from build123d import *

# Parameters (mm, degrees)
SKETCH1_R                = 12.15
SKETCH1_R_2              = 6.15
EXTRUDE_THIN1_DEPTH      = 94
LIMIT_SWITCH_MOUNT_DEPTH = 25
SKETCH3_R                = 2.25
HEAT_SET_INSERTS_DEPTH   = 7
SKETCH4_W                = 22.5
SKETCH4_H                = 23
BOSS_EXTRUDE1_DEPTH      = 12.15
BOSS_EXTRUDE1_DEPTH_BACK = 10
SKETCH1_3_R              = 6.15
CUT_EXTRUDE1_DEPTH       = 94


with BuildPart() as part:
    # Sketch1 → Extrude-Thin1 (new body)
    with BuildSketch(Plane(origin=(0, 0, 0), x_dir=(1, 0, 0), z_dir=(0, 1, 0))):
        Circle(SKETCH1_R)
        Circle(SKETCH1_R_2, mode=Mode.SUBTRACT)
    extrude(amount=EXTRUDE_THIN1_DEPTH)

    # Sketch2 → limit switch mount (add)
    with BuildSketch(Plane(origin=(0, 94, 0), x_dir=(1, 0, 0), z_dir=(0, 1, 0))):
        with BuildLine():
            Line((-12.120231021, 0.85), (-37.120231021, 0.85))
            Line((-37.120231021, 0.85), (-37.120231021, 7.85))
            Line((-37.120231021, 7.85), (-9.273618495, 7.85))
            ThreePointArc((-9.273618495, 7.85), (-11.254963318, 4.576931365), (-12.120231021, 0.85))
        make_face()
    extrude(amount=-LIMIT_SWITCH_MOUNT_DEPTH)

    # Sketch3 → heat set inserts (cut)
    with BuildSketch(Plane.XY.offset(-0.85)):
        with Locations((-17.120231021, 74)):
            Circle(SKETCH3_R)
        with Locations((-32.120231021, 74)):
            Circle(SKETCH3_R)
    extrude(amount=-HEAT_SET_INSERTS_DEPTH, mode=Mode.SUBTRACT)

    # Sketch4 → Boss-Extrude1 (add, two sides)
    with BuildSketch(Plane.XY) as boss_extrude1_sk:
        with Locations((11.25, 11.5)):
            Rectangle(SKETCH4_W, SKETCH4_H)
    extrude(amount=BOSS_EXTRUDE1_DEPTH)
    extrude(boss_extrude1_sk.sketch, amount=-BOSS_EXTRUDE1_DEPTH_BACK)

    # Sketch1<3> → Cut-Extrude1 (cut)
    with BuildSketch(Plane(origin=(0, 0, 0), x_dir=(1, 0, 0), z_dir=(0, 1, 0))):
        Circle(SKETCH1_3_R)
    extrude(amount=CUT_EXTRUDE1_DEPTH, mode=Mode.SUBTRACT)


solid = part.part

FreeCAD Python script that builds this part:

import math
import FreeCAD as App
import Part
import Sketcher

doc = App.newDocument("Part")
params = doc.addObject("Spreadsheet::Sheet", "Params")
for row, (alias, value) in enumerate([
    ("sketch1_diameter", "24.3 mm"),
    ("sketch1_diameter2", "12.3 mm"),
    ("pad1_length", "94 mm"),
    ("sketch2_width", "25 mm"),
    ("sketch2_height", "7 mm"),
    ("sketch2_radius", "12.15 mm"),
    ("pad2_length", "25 mm"),
    ("sketch3_diameter", "4.5 mm"),
    ("pocket1_length", "7 mm"),
    ("sketch4_height", "23 mm"),
    ("sketch4_width", "22.5 mm"),
    ("pad3_length", "12.15 mm"),
    ("pad3_length2", "10 mm"),
    ("sketch5_diameter", "12.3 mm"),
    ("pocket2_length", "94 mm"),
], start=1):
    params.set(f"A{row}", alias)
    params.set(f"B{row}", "=" + value)
    params.setAlias(f"B{row}", alias)

body = doc.addObject("PartDesign::Body", "Body")

# Sketch on XZ plane
sketch1 = body.newObject("Sketcher::SketchObject", "Sketch")
sketch1.AttachmentSupport = (doc.getObject("XZ_Plane"), [""])
sketch1.MapMode = "FlatFace"
sketch1.addGeometry(Part.Circle(App.Vector(0, 0, 0), App.Vector(0, 0, 1), 12), False)
sketch1.addGeometry(Part.Circle(App.Vector(0, 0, 0), App.Vector(0, 0, 1), 6), False)
sketch1.addConstraint(Sketcher.Constraint("Coincident", 0, 3, -1, 1))
sketch1.addConstraint(Sketcher.Constraint("Coincident", 1, 3, -1, 1))
sketch1.addConstraint(Sketcher.Constraint("Diameter", 0, 24.3))
sketch1.addConstraint(Sketcher.Constraint("Diameter", 1, 12.3))
sketch1.setExpression("Constraints[2]", "Params.sketch1_diameter")
sketch1.setExpression("Constraints[3]", "Params.sketch1_diameter2")
pad1 = body.newObject("PartDesign::Pad", "Pad")
pad1.Profile = sketch1
pad1.setExpression("Length", "Params.pad1_length")
pad1.Reversed = True

# Sketch on XZ plane
sketch2 = body.newObject("Sketcher::SketchObject", "Sketch001")
sketch2.AttachmentSupport = (doc.getObject("XZ_Plane"), [""])
sketch2.MapMode = "FlatFace"
sketch2.AttachmentOffset = App.Placement(App.Vector(0, 0, -94), App.Rotation())
sketch2.addGeometry(Part.LineSegment(App.Vector(-37, -1, 0), App.Vector(-12, -1, 0)), False)
sketch2.addGeometry(Part.ArcOfCircle(Part.Circle(App.Vector(0, 0, 0), App.Vector(0, 0, 1), 12), math.radians(-176), math.radians(-140)), False)
sketch2.addGeometry(Part.LineSegment(App.Vector(-9, -8, 0), App.Vector(-37, -8, 0)), False)
sketch2.addGeometry(Part.LineSegment(App.Vector(-37, -8, 0), App.Vector(-37, -1, 0)), False)
sketch2.addConstraint(Sketcher.Constraint("Coincident", 0, 2, 1, 1))
sketch2.addConstraint(Sketcher.Constraint("Coincident", 1, 2, 2, 1))
sketch2.addConstraint(Sketcher.Constraint("Coincident", 2, 2, 3, 1))
sketch2.addConstraint(Sketcher.Constraint("Coincident", 3, 2, 0, 1))
sketch2.addConstraint(Sketcher.Constraint("Horizontal", 0))
sketch2.addConstraint(Sketcher.Constraint("Horizontal", 2))
sketch2.addConstraint(Sketcher.Constraint("Vertical", 3))
sketch2.addConstraint(Sketcher.Constraint("Coincident", 1, 3, -1, 1))
sketch2.addConstraint(Sketcher.Constraint("DistanceX", 0, 1, 0, 2, 25.0))
sketch2.addConstraint(Sketcher.Constraint("DistanceY", 3, 1, 3, 2, 7.0))
sketch2.addConstraint(Sketcher.Constraint("Radius", 1, 12.15))
sketch2.addConstraint(Sketcher.Constraint("DistanceY", 0, 2, -1, 1, 0.85))
sketch2.setExpression("Constraints[8]", "Params.sketch2_width")
sketch2.setExpression("Constraints[9]", "Params.sketch2_height")
sketch2.setExpression("Constraints[10]", "Params.sketch2_radius")
pad2 = body.newObject("PartDesign::Pad", "Pad001")
pad2.Profile = sketch2
pad2.setExpression("Length", "Params.pad2_length")

# Sketch on XY plane
sketch3 = body.newObject("Sketcher::SketchObject", "Sketch002")
sketch3.AttachmentSupport = (doc.getObject("XY_Plane"), [""])
sketch3.MapMode = "FlatFace"
sketch3.AttachmentOffset = App.Placement(App.Vector(0, 0, -0.85), App.Rotation())
sketch3.addGeometry(Part.Circle(App.Vector(-17.1, 74, 0), App.Vector(0, 0, 1), 2.2), False)
sketch3.addGeometry(Part.Circle(App.Vector(-32.1, 74, 0), App.Vector(0, 0, 1), 2.2), False)
sketch3.addConstraint(Sketcher.Constraint("Equal", 0, 1))
sketch3.addConstraint(Sketcher.Constraint("Horizontal", 0, 3, 1, 3))
sketch3.addConstraint(Sketcher.Constraint("Diameter", 0, 4.5))
sketch3.addConstraint(Sketcher.Constraint("DistanceY", -1, 1, 0, 3, 74.0))
sketch3.addConstraint(Sketcher.Constraint("DistanceX", 1, 3, 0, 3, 15.0))
sketch3.addConstraint(Sketcher.Constraint("DistanceX", 0, 3, -1, 1, 17.120231))
sketch3.setExpression("Constraints[2]", "Params.sketch3_diameter")
pocket1 = body.newObject("PartDesign::Pocket", "Pocket")
pocket1.Profile = sketch3
pocket1.setExpression("Length", "Params.pocket1_length")

# Sketch on XY plane
sketch4 = body.newObject("Sketcher::SketchObject", "Sketch003")
sketch4.AttachmentSupport = (doc.getObject("XY_Plane"), [""])
sketch4.MapMode = "FlatFace"
sketch4.addGeometry(Part.LineSegment(App.Vector(0, 23, 0), App.Vector(0, 0, 0)), False)
sketch4.addGeometry(Part.LineSegment(App.Vector(0, 0, 0), App.Vector(22, 0, 0)), False)
sketch4.addGeometry(Part.LineSegment(App.Vector(22, 0, 0), App.Vector(22, 23, 0)), False)
sketch4.addGeometry(Part.LineSegment(App.Vector(22, 23, 0), App.Vector(0, 23, 0)), False)
sketch4.addConstraint(Sketcher.Constraint("Coincident", 0, 2, 1, 1))
sketch4.addConstraint(Sketcher.Constraint("Coincident", 1, 2, 2, 1))
sketch4.addConstraint(Sketcher.Constraint("Coincident", 2, 2, 3, 1))
sketch4.addConstraint(Sketcher.Constraint("Coincident", 3, 2, 0, 1))
sketch4.addConstraint(Sketcher.Constraint("Vertical", 0))
sketch4.addConstraint(Sketcher.Constraint("Horizontal", 1))
sketch4.addConstraint(Sketcher.Constraint("Vertical", 2))
sketch4.addConstraint(Sketcher.Constraint("Horizontal", 3))
sketch4.addConstraint(Sketcher.Constraint("Coincident", 0, 2, -1, 1))
sketch4.addConstraint(Sketcher.Constraint("DistanceY", 0, 2, 0, 1, 23.0))
sketch4.addConstraint(Sketcher.Constraint("DistanceX", 1, 1, 1, 2, 22.5))
sketch4.setExpression("Constraints[9]", "Params.sketch4_height")
sketch4.setExpression("Constraints[10]", "Params.sketch4_width")
pad3 = body.newObject("PartDesign::Pad", "Pad002")
pad3.Profile = sketch4
pad3.Type = "TwoLengths"
pad3.setExpression("Length", "Params.pad3_length")
pad3.setExpression("Length2", "Params.pad3_length2")

# Sketch on XZ plane
sketch5 = body.newObject("Sketcher::SketchObject", "Sketch004")
sketch5.AttachmentSupport = (doc.getObject("XZ_Plane"), [""])
sketch5.MapMode = "FlatFace"
sketch5.addGeometry(Part.Circle(App.Vector(0, 0, 0), App.Vector(0, 0, 1), 6), False)
sketch5.addConstraint(Sketcher.Constraint("Coincident", 0, 3, -1, 1))
sketch5.addConstraint(Sketcher.Constraint("Diameter", 0, 12.3))
sketch5.setExpression("Constraints[1]", "Params.sketch5_diameter")
pocket2 = body.newObject("PartDesign::Pocket", "Pocket001")
pocket2.Profile = sketch5
pocket2.setExpression("Length", "Params.pocket2_length")

doc.recompute()
